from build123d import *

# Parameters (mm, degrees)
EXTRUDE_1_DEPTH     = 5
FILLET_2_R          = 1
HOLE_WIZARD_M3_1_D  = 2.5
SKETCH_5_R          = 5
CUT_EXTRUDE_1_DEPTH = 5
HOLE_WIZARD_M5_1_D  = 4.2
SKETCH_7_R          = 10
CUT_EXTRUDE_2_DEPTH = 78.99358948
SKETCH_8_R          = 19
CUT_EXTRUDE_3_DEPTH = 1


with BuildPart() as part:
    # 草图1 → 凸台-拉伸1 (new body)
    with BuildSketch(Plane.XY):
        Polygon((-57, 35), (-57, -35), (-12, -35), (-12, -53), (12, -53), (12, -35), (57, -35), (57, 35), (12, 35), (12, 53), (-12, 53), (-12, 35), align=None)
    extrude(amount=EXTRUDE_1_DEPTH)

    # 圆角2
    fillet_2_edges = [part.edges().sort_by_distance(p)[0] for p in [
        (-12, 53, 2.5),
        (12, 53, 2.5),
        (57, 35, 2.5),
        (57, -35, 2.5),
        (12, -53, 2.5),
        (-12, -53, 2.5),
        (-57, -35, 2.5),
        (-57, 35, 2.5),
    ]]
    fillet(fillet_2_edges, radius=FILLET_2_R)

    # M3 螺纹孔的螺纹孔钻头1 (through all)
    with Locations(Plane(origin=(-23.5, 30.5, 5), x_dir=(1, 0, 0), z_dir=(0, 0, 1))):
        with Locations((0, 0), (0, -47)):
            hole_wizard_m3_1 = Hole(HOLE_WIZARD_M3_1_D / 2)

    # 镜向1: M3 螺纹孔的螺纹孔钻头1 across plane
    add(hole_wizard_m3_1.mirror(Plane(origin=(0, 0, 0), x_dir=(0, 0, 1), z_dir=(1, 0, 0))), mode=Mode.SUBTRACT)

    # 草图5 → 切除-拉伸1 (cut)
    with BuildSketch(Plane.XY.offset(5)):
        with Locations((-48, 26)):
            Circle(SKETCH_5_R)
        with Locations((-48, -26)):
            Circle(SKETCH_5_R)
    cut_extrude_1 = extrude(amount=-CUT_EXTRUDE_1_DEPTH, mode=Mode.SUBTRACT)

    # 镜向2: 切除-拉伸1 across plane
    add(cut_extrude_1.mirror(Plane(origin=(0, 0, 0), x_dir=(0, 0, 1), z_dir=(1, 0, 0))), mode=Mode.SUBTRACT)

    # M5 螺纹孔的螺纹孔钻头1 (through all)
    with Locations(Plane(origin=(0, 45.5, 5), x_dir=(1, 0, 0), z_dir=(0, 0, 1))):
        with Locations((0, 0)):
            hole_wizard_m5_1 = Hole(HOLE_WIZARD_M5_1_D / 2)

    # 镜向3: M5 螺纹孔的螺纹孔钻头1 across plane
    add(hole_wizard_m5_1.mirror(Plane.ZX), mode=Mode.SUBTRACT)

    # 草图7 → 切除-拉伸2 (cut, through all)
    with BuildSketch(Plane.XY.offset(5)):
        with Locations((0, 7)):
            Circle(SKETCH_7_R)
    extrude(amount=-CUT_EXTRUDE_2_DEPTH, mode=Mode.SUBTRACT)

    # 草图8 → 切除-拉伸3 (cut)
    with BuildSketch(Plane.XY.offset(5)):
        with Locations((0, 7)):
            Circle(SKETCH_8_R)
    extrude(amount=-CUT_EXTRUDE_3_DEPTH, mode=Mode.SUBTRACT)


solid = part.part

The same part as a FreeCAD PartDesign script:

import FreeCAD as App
import Part
import Sketcher
from FreeCAD import Vector


def edges_at(feature, points):
    """Names of the edges that pass closest to the given points."""
    edges = feature.Shape.Edges
    near = lambda p: min(range(len(edges)), key=lambda i: edges[i].distToShape(Part.Vertex(*p))[0])
    return sorted({f"Edge{near(p) + 1}" for p in points})

doc = App.newDocument("Part")
params = doc.addObject("Spreadsheet::Sheet", "Params")
for row, (alias, value) in enumerate([
    ("sketch1_width", "45 mm"),
    ("sketch1_width2", "24 mm"),
    ("sketch1_height", "70 mm"),
    ("sketch1_height2", "18 mm"),
    ("pad1_length", "5 mm"),
    ("fillet_radius", "1 mm"),
    ("sketch2_diameter", "2.5 mm"),
    ("hole_diameter", "2.5 mm"),
    ("sketch3_diameter", "10 mm"),
    ("pocket1_length", "5 mm"),
    ("sketch4_diameter", "4.2 mm"),
    ("hole2_diameter", "4.2 mm"),
    ("sketch5_diameter", "20 mm"),
    ("sketch6_diameter", "38 mm"),
    ("pocket3_length", "1 mm"),
], start=1):
    params.set(f"A{row}", alias)
    params.set(f"B{row}", "=" + value)
    params.setAlias(f"B{row}", alias)

body = doc.addObject("PartDesign::Body", "Body")

sketch1 = doc.addObject("Sketcher::SketchObject", "Sketch")
body.addObject(sketch1)
sketch1.AttachmentSupport = (doc.XY_Plane, [""])
sketch1.MapMode = "FlatFace"
sketch1.addGeometry([
    Part.LineSegment(Vector(-57, 35, 0), Vector(-57, -35, 0)),
    Part.LineSegment(Vector(-57, -35, 0), Vector(-12, -35, 0)),
    Part.LineSegment(Vector(-12, -35, 0), Vector(-12, -53, 0)),
    Part.LineSegment(Vector(-12, -53, 0), Vector(12, -53, 0)),
    Part.LineSegment(Vector(12, -53, 0), Vector(12, -35, 0)),
    Part.LineSegment(Vector(12, -35, 0), Vector(57, -35, 0)),
    Part.LineSegment(Vector(57, -35, 0), Vector(57, 35, 0)),
    Part.LineSegment(Vector(57, 35, 0), Vector(12, 35, 0)),
    Part.LineSegment(Vector(12, 35, 0), Vector(12, 53, 0)),
    Part.LineSegment(Vector(12, 53, 0), Vector(-12, 53, 0)),
    Part.LineSegment(Vector(-12, 53, 0), Vector(-12, 35, 0)),
    Part.LineSegment(Vector(-12, 35, 0), Vector(-57, 35, 0)),
], False)
sketch1.addConstraint([
    Sketcher.Constraint("Coincident", 0, 2, 1, 1),
    Sketcher.Constraint("Coincident", 1, 2, 2, 1),
    Sketcher.Constraint("Coincident", 2, 2, 3, 1),
    Sketcher.Constraint("Coincident", 3, 2, 4, 1),
    Sketcher.Constraint("Coincident", 4, 2, 5, 1),
    Sketcher.Constraint("Coincident", 5, 2, 6, 1),
    Sketcher.Constraint("Coincident", 6, 2, 7, 1),
    Sketcher.Constraint("Coincident", 7, 2, 8, 1),
    Sketcher.Constraint("Coincident", 8, 2, 9, 1),
    Sketcher.Constraint("Coincident", 9, 2, 10, 1),
    Sketcher.Constraint("Coincident", 10, 2, 11, 1),
    Sketcher.Constraint("Coincident", 11, 2, 0, 1),
    Sketcher.Constraint("Vertical", 0),
    Sketcher.Constraint("Horizontal", 1),
    Sketcher.Constraint("Vertical", 2),
    Sketcher.Constraint("Horizontal", 3),
    Sketcher.Constraint("Vertical", 4),
    Sketcher.Constraint("Horizontal", 5),
    Sketcher.Constraint("Vertical", 6),
    Sketcher.Constraint("Horizontal", 7),
    Sketcher.Constraint("Vertical", 8),
    Sketcher.Constraint("Horizontal", 9),
    Sketcher.Constraint("Vertical", 10),
    Sketcher.Constraint("Horizontal", 11),
    Sketcher.Constraint("Symmetric", 0, 2, 6, 2, -1, 1),
    Sketcher.Constraint("Symmetric", 2, 2, 8, 2, -1, 1),
    Sketcher.Constraint("Symmetric", 4, 2, 10, 2, -1, 1),
    Sketcher.Constraint("Symmetric", 1, 2, 4, 2, -2),
    Sketcher.Constraint("DistanceX", 1, 1, 1, 2, 45.0),
    Sketcher.Constraint("DistanceX", 3, 1, 3, 2, 24.0),
    Sketcher.Constraint("DistanceY", 0, 2, 0, 1, 70.0),
    Sketcher.Constraint("DistanceY", 2, 2, 2, 1, 18.0),
])
sketch1.setExpression("Constraints[28]", "Params.sketch1_width")
sketch1.setExpression("Constraints[29]", "Params.sketch1_width2")
sketch1.setExpression("Constraints[30]", "Params.sketch1_height")
sketch1.setExpression("Constraints[31]", "Params.sketch1_height2")
pad1 = doc.addObject("PartDesign::Pad", "Pad")
body.addObject(pad1)
pad1.Profile = sketch1
pad1.setExpression("Length", "Params.pad1_length")
doc.recompute()

fillet = doc.addObject("PartDesign::Fillet", "Fillet")
body.addObject(fillet)
fillet.Base = (pad1, edges_at(pad1, [
    (-12, 53, 2.5),
    (12, 53, 2.5),
    (57, 35, 2.5),
    (57, -35, 2.5),
    (12, -53, 2.5),
    (-12, -53, 2.5),
    (-57, -35, 2.5),
    (-57, 35, 2.5),
]))
fillet.setExpression("Radius", "Params.fillet_radius")

sketch2 = doc.addObject("Sketcher::SketchObject", "Sketch001")
body.addObject(sketch2)
sketch2.AttachmentSupport = (doc.XY_Plane, [""])
sketch2.MapMode = "FlatFace"
sketch2.AttachmentOffset = App.Placement(Vector(0, 0, 5), App.Rotation())
sketch2.addGeometry([
    Part.Circle(Vector(-23.5, 30.5, 0), Vector(0, 0, 1), 1.2),
    Part.Circle(Vector(-23.5, -16.5, 0), Vector(0, 0, 1), 1.2),
], False)
sketch2.addConstraint([
    Sketcher.Constraint("Equal", 0, 1),
    Sketcher.Constraint("Vertical", 0, 3, 1, 3),
    Sketcher.Constraint("Diameter", 0, 2.5),
    Sketcher.Constraint("DistanceY", 1, 3, 0, 3, 47.0),
    Sketcher.Constraint("DistanceX", 0, 3, -1, 1, 23.5),
    Sketcher.Constraint("DistanceY", -1, 1, 0, 3, 30.5),
])
sketch2.setExpression("Constraints[2]", "Params.sketch2_diameter")
doc.recompute()
hole = doc.addObject("PartDesign::Hole", "Hole")
body.addObject(hole)
hole.Profile = sketch2
hole.ThreadType = "None"
hole.setExpression("Diameter", "Params.hole_diameter")
hole.DepthType = "ThroughAll"
doc.recompute()

mirrored = doc.addObject("PartDesign::Mirrored", "Mirrored")
body.addObject(mirrored)
mirrored.Originals = [hole]
mirrored.MirrorPlane = (doc.YZ_Plane, [""])
body.Tip = mirrored

sketch3 = doc.addObject("Sketcher::SketchObject", "Sketch002")
body.addObject(sketch3)
sketch3.AttachmentSupport = (doc.XY_Plane, [""])
sketch3.MapMode = "FlatFace"
sketch3.AttachmentOffset = App.Placement(Vector(0, 0, 5), App.Rotation())
sketch3.addGeometry([
    Part.Circle(Vector(-48, 26, 0), Vector(0, 0, 1), 5),
    Part.Circle(Vector(-48, -26, 0), Vector(0, 0, 1), 5),
], False)
sketch3.addConstraint([
    Sketcher.Constraint("Equal", 0, 1),
    Sketcher.Constraint("Symmetric", 0, 3, 1, 3, -1),
    Sketcher.Constraint("Diameter", 0, 10.0),
    Sketcher.Constraint("DistanceX", 0, 3, -1, 1, 48.0),
    Sketcher.Constraint("DistanceY", -1, 1, 0, 3, 26.0),
])
sketch3.setExpression("Constraints[2]", "Params.sketch3_diameter")
pocket1 = doc.addObject("PartDesign::Pocket", "Pocket")
body.addObject(pocket1)
pocket1.Profile = sketch3
pocket1.setExpression("Length", "Params.pocket1_length")
doc.recompute()

mirrored2 = doc.addObject("PartDesign::Mirrored", "Mirrored001")
body.addObject(mirrored2)
mirrored2.Originals = [pocket1]
mirrored2.MirrorPlane = (doc.YZ_Plane, [""])
body.Tip = mirrored2

sketch4 = doc.addObject("Sketcher::SketchObject", "Sketch003")
body.addObject(sketch4)
sketch4.AttachmentSupport = (doc.XY_Plane, [""])
sketch4.MapMode = "FlatFace"
sketch4.AttachmentOffset = App.Placement(Vector(0, 0, 5), App.Rotation())
sketch4.addGeometry(Part.Circle(Vector(0, 45.5, 0), Vector(0, 0, 1), 2.1), False)
sketch4.addConstraint([
    Sketcher.Constraint("PointOnObject", 0, 3, -2),
    Sketcher.Constraint("Diameter", 0, 4.2),
    Sketcher.Constraint("DistanceY", -1, 1, 0, 3, 45.5),
])
sketch4.setExpression("Constraints[1]", "Params.sketch4_diameter")
doc.recompute()
hole2 = doc.addObject("PartDesign::Hole", "Hole001")
body.addObject(hole2)
hole2.Profile = sketch4
hole2.ThreadType = "None"
hole2.setExpression("Diameter", "Params.hole2_diameter")
hole2.DepthType = "ThroughAll"
doc.recompute()

mirrored3 = doc.addObject("PartDesign::Mirrored", "Mirrored002")
body.addObject(mirrored3)
mirrored3.Originals = [hole2]
mirrored3.MirrorPlane = (doc.XZ_Plane, [""])
body.Tip = mirrored3

sketch5 = doc.addObject("Sketcher::SketchObject", "Sketch004")
body.addObject(sketch5)
sketch5.AttachmentSupport = (doc.XY_Plane, [""])
sketch5.MapMode = "FlatFace"
sketch5.AttachmentOffset = App.Placement(Vector(0, 0, 5), App.Rotation())
sketch5.addGeometry(Part.Circle(Vector(0, 7, 0), Vector(0, 0, 1), 10), False)
sketch5.addConstraint([
    Sketcher.Constraint("PointOnObject", 0, 3, -2),
    Sketcher.Constraint("Diameter", 0, 20.0),
    Sketcher.Constraint("DistanceY", -1, 1, 0, 3, 7.0),
])
sketch5.setExpression("Constraints[1]", "Params.sketch5_diameter")
pocket2 = doc.addObject("PartDesign::Pocket", "Pocket001")
body.addObject(pocket2)
pocket2.Profile = sketch5
pocket2.Type = "ThroughAll"

sketch6 = doc.addObject("Sketcher::SketchObject", "Sketch005")
body.addObject(sketch6)
sketch6.AttachmentSupport = (doc.XY_Plane, [""])
sketch6.MapMode = "FlatFace"
sketch6.AttachmentOffset = App.Placement(Vector(0, 0, 5), App.Rotation())
sketch6.addGeometry(Part.Circle(Vector(0, 7, 0), Vector(0, 0, 1), 19), False)
sketch6.addConstraint([
    Sketcher.Constraint("PointOnObject", 0, 3, -2),
    Sketcher.Constraint("Diameter", 0, 38.0),
    Sketcher.Constraint("DistanceY", -1, 1, 0, 3, 7.0),
])
sketch6.setExpression("Constraints[1]", "Params.sketch6_diameter")
pocket3 = doc.addObject("PartDesign::Pocket", "Pocket002")
body.addObject(pocket3)
pocket3.Profile = sketch6
pocket3.setExpression("Length", "Params.pocket3_length")

doc.recompute()
